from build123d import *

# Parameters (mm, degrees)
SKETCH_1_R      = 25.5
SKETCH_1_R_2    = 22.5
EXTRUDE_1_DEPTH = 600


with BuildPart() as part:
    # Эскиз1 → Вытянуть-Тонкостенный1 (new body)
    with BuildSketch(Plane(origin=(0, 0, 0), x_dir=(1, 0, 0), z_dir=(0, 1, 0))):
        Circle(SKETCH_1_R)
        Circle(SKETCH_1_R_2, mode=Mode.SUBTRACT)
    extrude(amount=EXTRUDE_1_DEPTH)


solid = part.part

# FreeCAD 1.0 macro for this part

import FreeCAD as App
import Part
import Sketcher
from FreeCAD import Vector
Q = App.Units.Quantity

doc = App.newDocument("Part")
body = doc.addObject("PartDesign::Body", "Body")

sketch1 = doc.addObject("Sketcher::SketchObject", "Sketch")
body.addObject(sketch1)
sketch1.AttachmentSupport = (doc.XZ_Plane, [""])
sketch1.MapMode = "FlatFace"
sketch1.addGeometry([
    Part.Circle(Vector(0, 0, 0), Vector(0, 0, 1), 26),
    Part.Circle(Vector(0, 0, 0), Vector(0, 0, 1), 22),
], False)
sketch1.addConstraint([
    Sketcher.Constraint("Coincident", 0, 3, -1, 1),
    Sketcher.Constraint("Coincident", 1, 3, -1, 1),
    Sketcher.Constraint("Diameter", 0, Q("51 mm")),
    Sketcher.Constraint("Diameter", 1, Q("45 mm")),
])
pad1 = doc.addObject("PartDesign::Pad", "Pad")
body.addObject(pad1)
pad1.Profile = sketch1
pad1.Length = 600
pad1.Reversed = True

doc.recompute()
